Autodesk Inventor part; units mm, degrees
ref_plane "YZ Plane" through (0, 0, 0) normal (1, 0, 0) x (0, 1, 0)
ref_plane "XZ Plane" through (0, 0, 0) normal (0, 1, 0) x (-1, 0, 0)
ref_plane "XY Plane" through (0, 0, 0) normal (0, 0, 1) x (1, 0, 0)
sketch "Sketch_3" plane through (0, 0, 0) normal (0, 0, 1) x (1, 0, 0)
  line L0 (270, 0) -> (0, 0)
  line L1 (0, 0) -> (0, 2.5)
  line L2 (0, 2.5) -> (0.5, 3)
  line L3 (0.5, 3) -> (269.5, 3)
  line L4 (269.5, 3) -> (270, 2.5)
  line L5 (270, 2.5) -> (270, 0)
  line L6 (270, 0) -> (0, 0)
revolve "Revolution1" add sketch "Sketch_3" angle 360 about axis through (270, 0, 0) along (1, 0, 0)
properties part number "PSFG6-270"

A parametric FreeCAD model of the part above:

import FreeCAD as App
import Part
import Sketcher
from FreeCAD import Vector

doc = App.newDocument("Part")
body = doc.addObject("PartDesign::Body", "Body")

sketch1 = doc.addObject("Sketcher::SketchObject", "Sketch")
body.addObject(sketch1)
sketch1.AttachmentSupport = (doc.XY_Plane, [""])
sketch1.MapMode = "FlatFace"
sketch1.addGeometry(Part.LineSegment(Vector(0, 0, 0), Vector(270, 0, 0)), False)
sketch1.addGeometry(Part.LineSegment(Vector(270, 0, 0), Vector(270, 2.5, 0)), False)
sketch1.addGeometry(Part.LineSegment(Vector(270, 2.5, 0), Vector(269.5, 3, 0)), False)
sketch1.addGeometry(Part.LineSegment(Vector(269.5, 3, 0), Vector(0.5, 3, 0)), False)
sketch1.addGeometry(Part.LineSegment(Vector(0.5, 3, 0), Vector(0, 2.5, 0)), False)
sketch1.addGeometry(Part.LineSegment(Vector(0, 2.5, 0), Vector(0, 0, 0)), False)
sketch1.addConstraint(Sketcher.Constraint("Coincident", 0, 2, 1, 1))
sketch1.addConstraint(Sketcher.Constraint("Coincident", 1, 2, 2, 1))
sketch1.addConstraint(Sketcher.Constraint("Coincident", 2, 2, 3, 1))
sketch1.addConstraint(Sketcher.Constraint("Coincident", 3, 2, 4, 1))
sketch1.addConstraint(Sketcher.Constraint("Coincident", 4, 2, 5, 1))
sketch1.addConstraint(Sketcher.Constraint("Coincident", 5, 2, 0, 1))
sketch1.addConstraint(Sketcher.Constraint("Horizontal", 0))
sketch1.addConstraint(Sketcher.Constraint("Vertical", 1))
sketch1.addConstraint(Sketcher.Constraint("Horizontal", 3))
sketch1.addConstraint(Sketcher.Constraint("Vertical", 5))
sketch1.addConstraint(Sketcher.Constraint("Coincident", 5, 2, -1, 1))
sketch1.addConstraint(Sketcher.Constraint("Perpendicular", 2, 4))
sketch1.addConstraint(Sketcher.Constraint("Horizontal", 1, 2, 4, 2))
sketch1.addConstraint(Sketcher.Constraint("Equal", 2, 4))
sketch1.addConstraint(Sketcher.Constraint("DistanceX", 0, 1, 0, 2, 270.0))
sketch1.addConstraint(Sketcher.Constraint("DistanceX", 3, 2, 3, 1, 269.0))
sketch1.addConstraint(Sketcher.Constraint("DistanceY", 1, 1, 1, 2, 2.5))
revolution = doc.addObject("PartDesign::Revolution", "Revolution")
body.addObject(revolution)
revolution.Profile = sketch1
revolution.ReferenceAxis = (sketch1, ["H_Axis"])
revolution.Angle = 360

doc.recompute()
